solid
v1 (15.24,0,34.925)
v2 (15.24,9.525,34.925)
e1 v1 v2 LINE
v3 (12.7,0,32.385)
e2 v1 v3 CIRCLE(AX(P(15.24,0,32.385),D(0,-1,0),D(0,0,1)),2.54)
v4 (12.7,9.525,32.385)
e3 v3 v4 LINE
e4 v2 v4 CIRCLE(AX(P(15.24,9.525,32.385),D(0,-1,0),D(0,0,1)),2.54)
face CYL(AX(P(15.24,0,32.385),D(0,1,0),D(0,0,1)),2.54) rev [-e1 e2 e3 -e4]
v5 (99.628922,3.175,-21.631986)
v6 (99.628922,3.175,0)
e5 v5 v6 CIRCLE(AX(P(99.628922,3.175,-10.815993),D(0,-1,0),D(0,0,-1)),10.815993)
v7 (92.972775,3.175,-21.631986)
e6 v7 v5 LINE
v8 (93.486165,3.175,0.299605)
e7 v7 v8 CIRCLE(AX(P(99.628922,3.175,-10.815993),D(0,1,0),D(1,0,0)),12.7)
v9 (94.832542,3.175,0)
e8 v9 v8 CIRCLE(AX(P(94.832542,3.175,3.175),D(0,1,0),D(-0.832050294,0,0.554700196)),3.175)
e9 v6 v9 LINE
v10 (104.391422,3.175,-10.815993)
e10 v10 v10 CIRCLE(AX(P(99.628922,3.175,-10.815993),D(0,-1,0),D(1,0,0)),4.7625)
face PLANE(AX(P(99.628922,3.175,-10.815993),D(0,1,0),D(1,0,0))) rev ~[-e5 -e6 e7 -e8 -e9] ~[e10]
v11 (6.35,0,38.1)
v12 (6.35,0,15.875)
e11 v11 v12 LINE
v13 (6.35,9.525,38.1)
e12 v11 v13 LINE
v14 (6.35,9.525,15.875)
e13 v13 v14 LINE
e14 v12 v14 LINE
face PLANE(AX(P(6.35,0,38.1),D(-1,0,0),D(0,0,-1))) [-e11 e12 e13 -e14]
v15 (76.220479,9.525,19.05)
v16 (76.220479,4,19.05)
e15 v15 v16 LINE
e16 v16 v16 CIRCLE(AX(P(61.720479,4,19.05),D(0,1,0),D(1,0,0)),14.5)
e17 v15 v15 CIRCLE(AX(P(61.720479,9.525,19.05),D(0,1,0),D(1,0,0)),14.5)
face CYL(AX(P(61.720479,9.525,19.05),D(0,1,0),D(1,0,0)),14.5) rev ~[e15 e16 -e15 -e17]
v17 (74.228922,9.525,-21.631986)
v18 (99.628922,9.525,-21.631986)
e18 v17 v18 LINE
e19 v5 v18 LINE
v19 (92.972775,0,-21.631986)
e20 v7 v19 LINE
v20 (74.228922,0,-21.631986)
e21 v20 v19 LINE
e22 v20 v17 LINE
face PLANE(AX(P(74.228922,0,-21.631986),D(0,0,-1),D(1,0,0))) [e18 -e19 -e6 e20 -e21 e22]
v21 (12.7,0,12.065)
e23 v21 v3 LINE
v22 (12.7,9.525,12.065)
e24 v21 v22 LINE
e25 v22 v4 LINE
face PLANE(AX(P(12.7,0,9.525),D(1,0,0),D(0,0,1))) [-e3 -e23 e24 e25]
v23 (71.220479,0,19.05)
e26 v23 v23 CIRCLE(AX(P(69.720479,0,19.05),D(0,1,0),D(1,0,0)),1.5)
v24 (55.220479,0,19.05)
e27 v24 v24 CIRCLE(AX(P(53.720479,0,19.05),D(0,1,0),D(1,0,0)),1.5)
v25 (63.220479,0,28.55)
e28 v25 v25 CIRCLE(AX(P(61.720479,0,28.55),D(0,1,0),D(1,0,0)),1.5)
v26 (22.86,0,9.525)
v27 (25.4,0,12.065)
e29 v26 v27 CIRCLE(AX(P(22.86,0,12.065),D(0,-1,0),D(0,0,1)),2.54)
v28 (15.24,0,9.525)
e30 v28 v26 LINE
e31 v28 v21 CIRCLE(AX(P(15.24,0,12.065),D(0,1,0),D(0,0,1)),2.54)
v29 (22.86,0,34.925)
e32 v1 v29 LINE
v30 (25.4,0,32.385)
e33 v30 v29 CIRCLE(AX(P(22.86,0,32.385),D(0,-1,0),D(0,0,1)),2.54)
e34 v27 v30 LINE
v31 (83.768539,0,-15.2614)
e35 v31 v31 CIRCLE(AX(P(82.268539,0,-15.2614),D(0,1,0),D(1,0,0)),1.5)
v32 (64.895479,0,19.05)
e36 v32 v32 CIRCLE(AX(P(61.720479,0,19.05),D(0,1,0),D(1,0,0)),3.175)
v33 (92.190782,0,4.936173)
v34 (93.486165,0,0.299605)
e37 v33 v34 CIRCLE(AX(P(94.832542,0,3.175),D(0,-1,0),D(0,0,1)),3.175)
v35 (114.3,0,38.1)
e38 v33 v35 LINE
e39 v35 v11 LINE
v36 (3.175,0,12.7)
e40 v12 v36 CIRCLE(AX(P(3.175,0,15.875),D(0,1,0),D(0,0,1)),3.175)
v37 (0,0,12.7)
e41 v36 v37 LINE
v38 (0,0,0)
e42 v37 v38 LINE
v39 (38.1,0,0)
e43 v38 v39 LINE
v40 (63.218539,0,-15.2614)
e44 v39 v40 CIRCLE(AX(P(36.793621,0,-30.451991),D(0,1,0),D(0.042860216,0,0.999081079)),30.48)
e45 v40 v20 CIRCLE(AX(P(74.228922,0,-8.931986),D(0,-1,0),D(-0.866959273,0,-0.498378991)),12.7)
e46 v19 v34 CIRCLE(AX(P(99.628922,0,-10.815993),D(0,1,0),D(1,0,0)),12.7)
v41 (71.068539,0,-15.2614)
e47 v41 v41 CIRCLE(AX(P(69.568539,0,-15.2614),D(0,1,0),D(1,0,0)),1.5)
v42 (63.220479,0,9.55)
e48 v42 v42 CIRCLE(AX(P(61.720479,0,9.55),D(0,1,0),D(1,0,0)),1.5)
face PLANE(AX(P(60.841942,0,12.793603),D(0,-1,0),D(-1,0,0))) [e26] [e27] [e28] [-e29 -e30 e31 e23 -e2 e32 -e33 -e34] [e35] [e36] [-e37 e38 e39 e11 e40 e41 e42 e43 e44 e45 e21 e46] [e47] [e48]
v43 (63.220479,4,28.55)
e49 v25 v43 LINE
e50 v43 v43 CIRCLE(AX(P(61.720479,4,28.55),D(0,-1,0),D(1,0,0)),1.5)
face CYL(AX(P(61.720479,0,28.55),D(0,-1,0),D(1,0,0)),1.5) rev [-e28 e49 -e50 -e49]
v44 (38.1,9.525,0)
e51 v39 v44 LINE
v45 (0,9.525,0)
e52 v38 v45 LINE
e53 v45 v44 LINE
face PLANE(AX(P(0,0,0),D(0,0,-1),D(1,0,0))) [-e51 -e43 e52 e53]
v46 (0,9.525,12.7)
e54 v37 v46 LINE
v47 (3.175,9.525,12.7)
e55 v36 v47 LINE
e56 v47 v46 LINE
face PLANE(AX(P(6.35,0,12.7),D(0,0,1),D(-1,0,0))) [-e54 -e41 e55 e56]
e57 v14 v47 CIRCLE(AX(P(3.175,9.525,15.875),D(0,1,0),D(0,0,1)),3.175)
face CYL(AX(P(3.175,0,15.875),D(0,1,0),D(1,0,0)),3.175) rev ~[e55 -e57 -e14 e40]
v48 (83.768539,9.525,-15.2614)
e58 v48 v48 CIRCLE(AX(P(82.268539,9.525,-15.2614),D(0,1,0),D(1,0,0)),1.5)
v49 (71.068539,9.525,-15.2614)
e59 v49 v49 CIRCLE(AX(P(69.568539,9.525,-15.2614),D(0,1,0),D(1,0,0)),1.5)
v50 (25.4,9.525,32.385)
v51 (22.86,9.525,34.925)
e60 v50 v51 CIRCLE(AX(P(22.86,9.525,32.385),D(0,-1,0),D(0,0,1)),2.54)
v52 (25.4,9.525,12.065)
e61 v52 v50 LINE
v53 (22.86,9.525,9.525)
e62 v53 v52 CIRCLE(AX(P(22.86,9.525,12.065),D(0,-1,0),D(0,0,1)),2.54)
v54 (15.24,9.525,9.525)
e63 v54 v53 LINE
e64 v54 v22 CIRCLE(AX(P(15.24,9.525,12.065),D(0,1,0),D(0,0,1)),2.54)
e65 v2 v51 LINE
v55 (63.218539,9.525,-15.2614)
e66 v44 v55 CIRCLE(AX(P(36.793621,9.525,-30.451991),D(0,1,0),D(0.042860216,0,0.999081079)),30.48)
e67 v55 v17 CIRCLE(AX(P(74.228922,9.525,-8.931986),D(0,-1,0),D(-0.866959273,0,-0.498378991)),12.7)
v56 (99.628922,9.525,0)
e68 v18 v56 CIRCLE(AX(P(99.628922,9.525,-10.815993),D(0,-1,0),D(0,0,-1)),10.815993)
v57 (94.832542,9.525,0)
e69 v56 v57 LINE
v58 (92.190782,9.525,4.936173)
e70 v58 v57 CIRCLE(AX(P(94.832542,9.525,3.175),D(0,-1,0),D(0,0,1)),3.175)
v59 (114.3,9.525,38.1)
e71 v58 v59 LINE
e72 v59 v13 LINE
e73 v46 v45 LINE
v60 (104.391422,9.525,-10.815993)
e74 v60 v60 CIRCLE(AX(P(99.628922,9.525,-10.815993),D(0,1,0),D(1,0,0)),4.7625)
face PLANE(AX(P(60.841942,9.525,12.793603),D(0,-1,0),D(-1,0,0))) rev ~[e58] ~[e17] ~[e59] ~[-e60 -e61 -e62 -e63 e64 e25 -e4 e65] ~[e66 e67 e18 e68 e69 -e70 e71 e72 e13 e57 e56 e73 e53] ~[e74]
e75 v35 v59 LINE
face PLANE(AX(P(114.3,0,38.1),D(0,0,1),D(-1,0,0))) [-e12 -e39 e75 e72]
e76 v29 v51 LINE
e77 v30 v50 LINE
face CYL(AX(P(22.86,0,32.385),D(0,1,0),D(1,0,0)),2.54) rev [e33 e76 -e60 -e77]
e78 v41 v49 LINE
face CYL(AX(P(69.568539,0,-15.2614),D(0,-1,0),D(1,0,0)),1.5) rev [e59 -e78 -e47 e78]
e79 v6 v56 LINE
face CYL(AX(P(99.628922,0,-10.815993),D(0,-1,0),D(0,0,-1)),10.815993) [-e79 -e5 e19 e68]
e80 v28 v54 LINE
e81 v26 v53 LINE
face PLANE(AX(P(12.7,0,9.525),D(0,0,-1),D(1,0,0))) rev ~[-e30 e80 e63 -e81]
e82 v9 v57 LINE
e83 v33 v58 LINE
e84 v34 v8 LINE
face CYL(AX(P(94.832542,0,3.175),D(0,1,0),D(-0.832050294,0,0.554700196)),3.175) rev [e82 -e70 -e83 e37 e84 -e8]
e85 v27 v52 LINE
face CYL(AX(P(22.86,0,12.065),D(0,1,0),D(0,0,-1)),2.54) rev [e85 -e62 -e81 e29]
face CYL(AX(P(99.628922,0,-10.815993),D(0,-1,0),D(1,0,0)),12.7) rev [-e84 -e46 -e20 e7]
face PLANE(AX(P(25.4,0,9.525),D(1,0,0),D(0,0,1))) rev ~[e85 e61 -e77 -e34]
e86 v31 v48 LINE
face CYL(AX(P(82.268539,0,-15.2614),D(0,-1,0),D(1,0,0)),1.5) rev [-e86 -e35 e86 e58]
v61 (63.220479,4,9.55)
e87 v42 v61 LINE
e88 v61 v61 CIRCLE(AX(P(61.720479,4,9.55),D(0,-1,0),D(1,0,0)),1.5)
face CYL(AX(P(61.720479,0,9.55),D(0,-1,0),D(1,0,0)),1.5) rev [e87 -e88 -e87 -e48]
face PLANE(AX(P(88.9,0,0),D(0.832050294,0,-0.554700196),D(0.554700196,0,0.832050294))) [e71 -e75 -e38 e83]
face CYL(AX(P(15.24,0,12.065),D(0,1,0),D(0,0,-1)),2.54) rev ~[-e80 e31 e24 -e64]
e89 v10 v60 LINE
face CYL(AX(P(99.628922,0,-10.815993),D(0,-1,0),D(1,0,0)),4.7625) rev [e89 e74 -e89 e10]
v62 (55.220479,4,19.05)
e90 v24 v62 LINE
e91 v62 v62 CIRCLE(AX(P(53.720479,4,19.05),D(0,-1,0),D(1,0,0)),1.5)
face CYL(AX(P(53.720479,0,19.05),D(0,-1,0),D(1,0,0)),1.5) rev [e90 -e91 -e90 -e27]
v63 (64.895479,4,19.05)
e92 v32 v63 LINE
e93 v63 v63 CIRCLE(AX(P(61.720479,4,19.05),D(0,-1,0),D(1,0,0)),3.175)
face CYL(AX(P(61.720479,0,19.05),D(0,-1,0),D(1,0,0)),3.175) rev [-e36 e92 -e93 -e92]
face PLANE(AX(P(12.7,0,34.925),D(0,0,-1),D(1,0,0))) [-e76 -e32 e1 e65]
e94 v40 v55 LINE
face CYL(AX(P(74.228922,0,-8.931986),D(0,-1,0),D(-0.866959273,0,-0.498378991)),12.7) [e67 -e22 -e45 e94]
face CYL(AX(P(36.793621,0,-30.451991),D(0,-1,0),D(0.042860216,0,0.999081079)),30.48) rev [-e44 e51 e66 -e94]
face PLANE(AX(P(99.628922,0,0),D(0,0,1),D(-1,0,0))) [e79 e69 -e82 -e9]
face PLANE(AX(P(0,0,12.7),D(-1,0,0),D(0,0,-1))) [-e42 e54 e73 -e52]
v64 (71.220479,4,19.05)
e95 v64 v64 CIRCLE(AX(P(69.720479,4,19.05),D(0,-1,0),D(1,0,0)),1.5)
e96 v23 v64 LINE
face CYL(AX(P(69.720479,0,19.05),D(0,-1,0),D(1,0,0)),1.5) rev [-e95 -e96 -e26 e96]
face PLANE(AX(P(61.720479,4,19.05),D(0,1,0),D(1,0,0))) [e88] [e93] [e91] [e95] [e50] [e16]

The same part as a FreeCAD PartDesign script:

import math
import FreeCAD as App
import Part
import Sketcher

V = App.Vector
Q = App.Units.Quantity


def edges_at(feature, points):
    """Names of the edges that pass closest to the given points."""
    edges = feature.Shape.Edges
    near = lambda p: min(range(len(edges)), key=lambda i: edges[i].distToShape(Part.Vertex(*p))[0])
    return sorted({f"Edge{near(p) + 1}" for p in points})


def add_polygon(sketch, points):
    """Adds a closed chain of lines whose ends are joined by coincident constraints."""
    first, n = sketch.GeometryCount, len(points)
    for a, b in zip(points, points[1:] + points[:1]):
        sketch.addGeometry(Part.LineSegment(App.Vector(*a, 0), App.Vector(*b, 0)), False)
    for i in range(n):
        sketch.addConstraint(Sketcher.Constraint("Coincident", first + i, 2, first + (i + 1) % n, 1))

doc = App.newDocument("Part")
body = doc.addObject("PartDesign::Body", "Body")

sketch1 = body.newObject("Sketcher::SketchObject", "Sketch")
sketch1.AttachmentSupport = (doc.getObject("XZ_Plane"), [""])
sketch1.MapMode = "FlatFace"
sketch1.addGeometry(Part.LineSegment(V(38.1, 0, 0), V(0, 0, 0)), False)
sketch1.addGeometry(Part.LineSegment(V(0, 0, 0), V(0, 12.7, 0)), False)
sketch1.addGeometry(Part.LineSegment(V(0, 12.7, 0), V(6.35, 12.7, 0)), False)
sketch1.addGeometry(Part.LineSegment(V(6.35, 12.7, 0), V(6.35, 38.1, 0)), False)
sketch1.addGeometry(Part.LineSegment(V(6.35, 38.1, 0), V(114.3, 38.1, 0)), False)
sketch1.addGeometry(Part.LineSegment(V(114.3, 38.1, 0), V(88.9, 0, 0)), False)
sketch1.addGeometry(Part.LineSegment(V(88.9, 0, 0), V(99.628922, 0, 0)), False)
sketch1.addGeometry(Part.ArcOfCircle(Part.Circle(V(99.628922, -10.815993, 0), V(0, 0, 1), 10.815993), math.radians(-90), math.radians(90)), False)
sketch1.addGeometry(Part.LineSegment(V(99.628922, -21.631986, 0), V(74.228922, -21.631986, 0)), False)
sketch1.addGeometry(Part.ArcOfCircle(Part.Circle(V(74.228922, -8.931986, 0), V(0, 0, 1), 12.7), math.radians(-150.107187), math.radians(-90)), False)
sketch1.addGeometry(Part.ArcOfCircle(Part.Circle(V(36.793621, -30.451991, 0), V(0, 0, 1), 30.48), math.radians(29.892813), math.radians(87.543538)), False)
sketch1.addGeometry(Part.Circle(V(69.720479, 19.05, 0), V(0, 0, 1), 1.5), False)
sketch1.addGeometry(Part.Circle(V(61.720479, 28.55, 0), V(0, 0, 1), 1.5), False)
sketch1.addGeometry(Part.Circle(V(61.720479, 19.05, 0), V(0, 0, 1), 3.175), False)
sketch1.addGeometry(Part.Circle(V(53.720479, 19.05, 0), V(0, 0, 1), 1.5), False)
sketch1.addGeometry(Part.Circle(V(61.720479, 9.55, 0), V(0, 0, 1), 1.5), False)
sketch1.addGeometry(Part.Circle(V(99.628922, -10.815993, 0), V(0, 0, 1), 4.7625), False)
sketch1.addGeometry(Part.Circle(V(82.268539, -15.2614, 0), V(0, 0, 1), 1.5), False)
sketch1.addGeometry(Part.Circle(V(69.568539, -15.2614, 0), V(0, 0, 1), 1.5), False)
sketch1.addConstraint(Sketcher.Constraint("Coincident", 0, 2, 1, 1))
sketch1.addConstraint(Sketcher.Constraint("Coincident", 1, 2, 2, 1))
sketch1.addConstraint(Sketcher.Constraint("Coincident", 2, 2, 3, 1))
sketch1.addConstraint(Sketcher.Constraint("Coincident", 3, 2, 4, 1))
sketch1.addConstraint(Sketcher.Constraint("Coincident", 4, 2, 5, 1))
sketch1.addConstraint(Sketcher.Constraint("Coincident", 5, 2, 6, 1))
sketch1.addConstraint(Sketcher.Constraint("Coincident", 6, 2, 7, 2))
sketch1.addConstraint(Sketcher.Constraint("Coincident", 7, 1, 8, 1))
sketch1.addConstraint(Sketcher.Constraint("Coincident", 8, 2, 9, 2))
sketch1.addConstraint(Sketcher.Constraint("Coincident", 9, 1, 10, 1))
sketch1.addConstraint(Sketcher.Constraint("Coincident", 10, 2, 0, 1))
sketch1.addConstraint(Sketcher.Constraint("Horizontal", 0))
sketch1.addConstraint(Sketcher.Constraint("Vertical", 1))
sketch1.addConstraint(Sketcher.Constraint("Horizontal", 2))
sketch1.addConstraint(Sketcher.Constraint("Vertical", 3))
sketch1.addConstraint(Sketcher.Constraint("Horizontal", 4))
sketch1.addConstraint(Sketcher.Constraint("Horizontal", 6))
sketch1.addConstraint(Sketcher.Constraint("Horizontal", 8))
sketch1.addConstraint(Sketcher.Constraint("Coincident", 0, 2, -1, 1))
sketch1.addConstraint(Sketcher.Constraint("Coincident", 16, 3, 7, 3))
sketch1.addConstraint(Sketcher.Constraint("PointOnObject", 5, 2, -1))
sketch1.addConstraint(Sketcher.Constraint("Radius", 9, Q("0.5 in")))
sketch1.addConstraint(Sketcher.Constraint("Radius", 10, Q("1.2 in")))
sketch1.addConstraint(Sketcher.Constraint("Diameter", 13, Q("0.25 in")))
sketch1.addConstraint(Sketcher.Constraint("DistanceX", 8, 2, 8, 1, Q("1 in")))
sketch1.addConstraint(Sketcher.Constraint("DistanceY", 3, 1, 3, 2, Q("1 in")))
sketch1.addConstraint(Sketcher.Constraint("Diameter", 16, Q("0.375 in")))
sketch1.addConstraint(Sketcher.Constraint("DistanceX", 0, 2, 0, 1, Q("1.5 in")))
sketch1.addConstraint(Sketcher.Constraint("DistanceY", 1, 1, 1, 2, Q("0.5 in")))
sketch1.addConstraint(Sketcher.Constraint("DistanceX", 9, 3, 7, 3, Q("1 in")))
sketch1.addConstraint(Sketcher.Constraint("DistanceX", 9, 3, 6, 2, Q("1 in")))
sketch1.addConstraint(Sketcher.Constraint("DistanceX", 2, 1, 2, 2, Q("0.25 in")))
sketch1.addConstraint(Sketcher.Constraint("DistanceX", 4, 1, 4, 2, Q("4.25 in")))
sketch1.addConstraint(Sketcher.Constraint("DistanceX", -1, 1, 5, 2, Q("3.5 in")))
sketch1.addConstraint(Sketcher.Constraint("DistanceX", 18, 3, 17, 3, Q("0.5 in")))
sketch1.addConstraint(Sketcher.Constraint("Diameter", 11, Q("3 mm")))
sketch1.addConstraint(Sketcher.Constraint("Diameter", 12, Q("3 mm")))
sketch1.addConstraint(Sketcher.Constraint("Diameter", 14, Q("3 mm")))
sketch1.addConstraint(Sketcher.Constraint("Diameter", 15, Q("3 mm")))
sketch1.addConstraint(Sketcher.Constraint("Diameter", 17, Q("3 mm")))
sketch1.addConstraint(Sketcher.Constraint("Diameter", 18, Q("3 mm")))
sketch1.addConstraint(Sketcher.Constraint("DistanceY", -1, 1, 11, 3, Q("0.75 in")))
sketch1.addConstraint(Sketcher.Constraint("DistanceY", -1, 1, 13, 3, Q("0.75 in")))
sketch1.addConstraint(Sketcher.Constraint("DistanceY", -1, 1, 14, 3, Q("0.75 in")))
sketch1.addConstraint(Sketcher.Constraint("DistanceX", 9, 1, 18, 3, Q("0.25 in")))
sketch1.addConstraint(Sketcher.Constraint("Radius", 7, Q("10.815993 mm")))
sketch1.addConstraint(Sketcher.Constraint("DistanceY", -1, 1, 12, 3, Q("28.55 mm")))
sketch1.addConstraint(Sketcher.Constraint("DistanceY", -1, 1, 15, 3, Q("9.55 mm")))
sketch1.addConstraint(Sketcher.Constraint("DistanceY", 17, 3, -1, 1, Q("15.2614 mm")))
sketch1.addConstraint(Sketcher.Constraint("DistanceY", 18, 3, -1, 1, Q("15.2614 mm")))
sketch1.addConstraint(Sketcher.Constraint("DistanceY", 9, 1, -1, 1, Q("15.2614 mm")))
sketch1.addConstraint(Sketcher.Constraint("DistanceX", 10, 3, 9, 3, Q("37.435301 mm")))
sketch1.addConstraint(Sketcher.Constraint("DistanceX", 12, 3, 11, 3, Q("8 mm")))
sketch1.addConstraint(Sketcher.Constraint("DistanceX", 13, 3, 11, 3, Q("8 mm")))
sketch1.addConstraint(Sketcher.Constraint("DistanceX", 14, 3, 13, 3, Q("8 mm")))
sketch1.addConstraint(Sketcher.Constraint("DistanceX", 15, 3, 11, 3, Q("8 mm")))
sketch1.addConstraint(Sketcher.Constraint("DistanceX", -1, 1, 11, 3, Q("69.720479 mm")))
sketch1.addConstraint(Sketcher.Constraint("DistanceX", -1, 1, 7, 1, Q("99.628922 mm")))
pad1 = body.newObject("PartDesign::Pad", "Pad")
pad1.Profile = sketch1
pad1.Length = Q("0.375 in")
pad1.Reversed = True
doc.recompute()

fillet = body.newObject("PartDesign::Fillet", "Fillet")
fillet.Base = (pad1, edges_at(pad1, [(88.9, 4.763, 0)]))
fillet.Radius = Q("0.125 in")
doc.recompute()

fillet2 = body.newObject("PartDesign::Fillet", "Fillet001")
fillet2.Base = (fillet, edges_at(fillet, [(6.35, 4.763, 12.7)]))
fillet2.Radius = Q("0.125 in")

sketch2 = body.newObject("Sketcher::SketchObject", "Sketch001")
sketch2.AttachmentSupport = (doc.getObject("XZ_Plane"), [""])
sketch2.MapMode = "FlatFace"
sketch2.AttachmentOffset = App.Placement(V(0, 0, -0.375 * 25.4), App.Rotation())
sketch2.addGeometry(Part.Circle(V(61.720479, 19.05, 0), V(0, 0, 1), 14.5), False)
sketch2.addConstraint(Sketcher.Constraint("Diameter", 0, Q("29 mm")))
sketch2.addConstraint(Sketcher.Constraint("DistanceY", -1, 1, 0, 3, Q("0.75 in")))
sketch2.addConstraint(Sketcher.Constraint("DistanceX", -1, 1, 0, 3, Q("61.720479 mm")))
pocket1 = body.newObject("PartDesign::Pocket", "Pocket")
pocket1.Profile = sketch2
pocket1.Length = 5.525
pocket1.Reversed = True

sketch3 = body.newObject("Sketcher::SketchObject", "Sketch002")
sketch3.AttachmentSupport = (doc.getObject("XZ_Plane"), [""])
sketch3.MapMode = "FlatFace"
sketch3.addGeometry(Part.Circle(V(99.628922, -10.815993, 0), V(0, 0, 1), 12.7), False)
sketch3.addConstraint(Sketcher.Constraint("Diameter", 0, Q("1 in")))
sketch3.addConstraint(Sketcher.Constraint("DistanceX", -1, 1, 0, 3, Q("99.628922 mm")))
sketch3.addConstraint(Sketcher.Constraint("DistanceY", 0, 3, -1, 1, Q("10.815993 mm")))
pocket2 = body.newObject("PartDesign::Pocket", "Pocket001")
pocket2.Profile = sketch3
pocket2.Length = Q("0.125 in")

sketch4 = body.newObject("Sketcher::SketchObject", "Sketch003")
sketch4.AttachmentSupport = (doc.getObject("XZ_Plane"), [""])
sketch4.MapMode = "FlatFace"
add_polygon(sketch4, [(12.7, 34.925), (12.7, 9.525), (25.4, 9.525), (25.4, 34.925)])
sketch4.addConstraint(Sketcher.Constraint("Vertical", 0))
sketch4.addConstraint(Sketcher.Constraint("Horizontal", 1))
sketch4.addConstraint(Sketcher.Constraint("Vertical", 2))
sketch4.addConstraint(Sketcher.Constraint("Horizontal", 3))
sketch4.addConstraint(Sketcher.Constraint("DistanceY", 0, 2, 0, 1, Q("1 in")))
sketch4.addConstraint(Sketcher.Constraint("DistanceX", 1, 1, 1, 2, Q("0.5 in")))
sketch4.addConstraint(Sketcher.Constraint("DistanceX", -1, 1, 1, 2, Q("1 in")))
sketch4.addConstraint(Sketcher.Constraint("DistanceY", -1, 1, 0, 2, Q("0.375 in")))
pocket3 = body.newObject("PartDesign::Pocket", "Pocket002")
pocket3.Profile = sketch4
pocket3.Type = "ThroughAll"
doc.recompute()

fillet3 = body.newObject("PartDesign::Fillet", "Fillet002")
fillet3.Base = (pocket3, edges_at(pocket3, [
    (12.7, 4.763, 34.925),
    (25.4, 4.763, 34.925),
    (25.4, 4.763, 9.525),
    (12.7, 4.763, 9.525),
]))
fillet3.Radius = Q("0.1 in")

doc.recompute()
